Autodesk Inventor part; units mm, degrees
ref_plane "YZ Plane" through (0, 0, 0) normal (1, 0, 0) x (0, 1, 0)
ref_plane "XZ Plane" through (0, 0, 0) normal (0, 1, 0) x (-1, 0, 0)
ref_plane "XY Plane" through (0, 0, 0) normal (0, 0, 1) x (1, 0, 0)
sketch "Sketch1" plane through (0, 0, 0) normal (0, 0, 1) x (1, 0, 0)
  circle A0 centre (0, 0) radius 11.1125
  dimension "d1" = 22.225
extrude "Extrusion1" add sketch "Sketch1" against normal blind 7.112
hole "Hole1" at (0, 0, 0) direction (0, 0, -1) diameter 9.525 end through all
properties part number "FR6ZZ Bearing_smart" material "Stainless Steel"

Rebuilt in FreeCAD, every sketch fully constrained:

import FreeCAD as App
import Part
import Sketcher

V = App.Vector
Q = App.Units.Quantity

doc = App.newDocument("Part")
body = doc.addObject("PartDesign::Body", "Body")

sketch1 = body.newObject("Sketcher::SketchObject", "Sketch")
sketch1.AttachmentSupport = (doc.getObject("XY_Plane"), [""])
sketch1.MapMode = "FlatFace"
sketch1.addGeometry(Part.Circle(V(0, 0, 0), V(0, 0, 1), 11), False)
sketch1.addConstraint([
    Sketcher.Constraint("Coincident", 0, 3, -1, 1),
    Sketcher.Constraint("Diameter", 0, Q("0.875 in")),
])
pad1 = body.newObject("PartDesign::Pad", "Pad")
pad1.Profile = sketch1
pad1.Length = Q("0.28 in")
pad1.Reversed = True

sketch2 = body.newObject("Sketcher::SketchObject", "Sketch001")
sketch2.AttachmentSupport = (doc.getObject("XY_Plane"), [""])
sketch2.MapMode = "FlatFace"
sketch2.addGeometry(Part.Circle(V(0, 0, 0), V(0, 0, 1), 4.8), False)
sketch2.addConstraint([
    Sketcher.Constraint("Coincident", 0, 3, -1, 1),
    Sketcher.Constraint("Diameter", 0, Q("0.375 in")),
])
doc.recompute()
hole = body.newObject("PartDesign::Hole", "Hole")
hole.Profile = sketch2
hole.ThreadType = "None"
hole.Diameter = Q("0.375 in")
hole.DepthType = "ThroughAll"

doc.recompute()
